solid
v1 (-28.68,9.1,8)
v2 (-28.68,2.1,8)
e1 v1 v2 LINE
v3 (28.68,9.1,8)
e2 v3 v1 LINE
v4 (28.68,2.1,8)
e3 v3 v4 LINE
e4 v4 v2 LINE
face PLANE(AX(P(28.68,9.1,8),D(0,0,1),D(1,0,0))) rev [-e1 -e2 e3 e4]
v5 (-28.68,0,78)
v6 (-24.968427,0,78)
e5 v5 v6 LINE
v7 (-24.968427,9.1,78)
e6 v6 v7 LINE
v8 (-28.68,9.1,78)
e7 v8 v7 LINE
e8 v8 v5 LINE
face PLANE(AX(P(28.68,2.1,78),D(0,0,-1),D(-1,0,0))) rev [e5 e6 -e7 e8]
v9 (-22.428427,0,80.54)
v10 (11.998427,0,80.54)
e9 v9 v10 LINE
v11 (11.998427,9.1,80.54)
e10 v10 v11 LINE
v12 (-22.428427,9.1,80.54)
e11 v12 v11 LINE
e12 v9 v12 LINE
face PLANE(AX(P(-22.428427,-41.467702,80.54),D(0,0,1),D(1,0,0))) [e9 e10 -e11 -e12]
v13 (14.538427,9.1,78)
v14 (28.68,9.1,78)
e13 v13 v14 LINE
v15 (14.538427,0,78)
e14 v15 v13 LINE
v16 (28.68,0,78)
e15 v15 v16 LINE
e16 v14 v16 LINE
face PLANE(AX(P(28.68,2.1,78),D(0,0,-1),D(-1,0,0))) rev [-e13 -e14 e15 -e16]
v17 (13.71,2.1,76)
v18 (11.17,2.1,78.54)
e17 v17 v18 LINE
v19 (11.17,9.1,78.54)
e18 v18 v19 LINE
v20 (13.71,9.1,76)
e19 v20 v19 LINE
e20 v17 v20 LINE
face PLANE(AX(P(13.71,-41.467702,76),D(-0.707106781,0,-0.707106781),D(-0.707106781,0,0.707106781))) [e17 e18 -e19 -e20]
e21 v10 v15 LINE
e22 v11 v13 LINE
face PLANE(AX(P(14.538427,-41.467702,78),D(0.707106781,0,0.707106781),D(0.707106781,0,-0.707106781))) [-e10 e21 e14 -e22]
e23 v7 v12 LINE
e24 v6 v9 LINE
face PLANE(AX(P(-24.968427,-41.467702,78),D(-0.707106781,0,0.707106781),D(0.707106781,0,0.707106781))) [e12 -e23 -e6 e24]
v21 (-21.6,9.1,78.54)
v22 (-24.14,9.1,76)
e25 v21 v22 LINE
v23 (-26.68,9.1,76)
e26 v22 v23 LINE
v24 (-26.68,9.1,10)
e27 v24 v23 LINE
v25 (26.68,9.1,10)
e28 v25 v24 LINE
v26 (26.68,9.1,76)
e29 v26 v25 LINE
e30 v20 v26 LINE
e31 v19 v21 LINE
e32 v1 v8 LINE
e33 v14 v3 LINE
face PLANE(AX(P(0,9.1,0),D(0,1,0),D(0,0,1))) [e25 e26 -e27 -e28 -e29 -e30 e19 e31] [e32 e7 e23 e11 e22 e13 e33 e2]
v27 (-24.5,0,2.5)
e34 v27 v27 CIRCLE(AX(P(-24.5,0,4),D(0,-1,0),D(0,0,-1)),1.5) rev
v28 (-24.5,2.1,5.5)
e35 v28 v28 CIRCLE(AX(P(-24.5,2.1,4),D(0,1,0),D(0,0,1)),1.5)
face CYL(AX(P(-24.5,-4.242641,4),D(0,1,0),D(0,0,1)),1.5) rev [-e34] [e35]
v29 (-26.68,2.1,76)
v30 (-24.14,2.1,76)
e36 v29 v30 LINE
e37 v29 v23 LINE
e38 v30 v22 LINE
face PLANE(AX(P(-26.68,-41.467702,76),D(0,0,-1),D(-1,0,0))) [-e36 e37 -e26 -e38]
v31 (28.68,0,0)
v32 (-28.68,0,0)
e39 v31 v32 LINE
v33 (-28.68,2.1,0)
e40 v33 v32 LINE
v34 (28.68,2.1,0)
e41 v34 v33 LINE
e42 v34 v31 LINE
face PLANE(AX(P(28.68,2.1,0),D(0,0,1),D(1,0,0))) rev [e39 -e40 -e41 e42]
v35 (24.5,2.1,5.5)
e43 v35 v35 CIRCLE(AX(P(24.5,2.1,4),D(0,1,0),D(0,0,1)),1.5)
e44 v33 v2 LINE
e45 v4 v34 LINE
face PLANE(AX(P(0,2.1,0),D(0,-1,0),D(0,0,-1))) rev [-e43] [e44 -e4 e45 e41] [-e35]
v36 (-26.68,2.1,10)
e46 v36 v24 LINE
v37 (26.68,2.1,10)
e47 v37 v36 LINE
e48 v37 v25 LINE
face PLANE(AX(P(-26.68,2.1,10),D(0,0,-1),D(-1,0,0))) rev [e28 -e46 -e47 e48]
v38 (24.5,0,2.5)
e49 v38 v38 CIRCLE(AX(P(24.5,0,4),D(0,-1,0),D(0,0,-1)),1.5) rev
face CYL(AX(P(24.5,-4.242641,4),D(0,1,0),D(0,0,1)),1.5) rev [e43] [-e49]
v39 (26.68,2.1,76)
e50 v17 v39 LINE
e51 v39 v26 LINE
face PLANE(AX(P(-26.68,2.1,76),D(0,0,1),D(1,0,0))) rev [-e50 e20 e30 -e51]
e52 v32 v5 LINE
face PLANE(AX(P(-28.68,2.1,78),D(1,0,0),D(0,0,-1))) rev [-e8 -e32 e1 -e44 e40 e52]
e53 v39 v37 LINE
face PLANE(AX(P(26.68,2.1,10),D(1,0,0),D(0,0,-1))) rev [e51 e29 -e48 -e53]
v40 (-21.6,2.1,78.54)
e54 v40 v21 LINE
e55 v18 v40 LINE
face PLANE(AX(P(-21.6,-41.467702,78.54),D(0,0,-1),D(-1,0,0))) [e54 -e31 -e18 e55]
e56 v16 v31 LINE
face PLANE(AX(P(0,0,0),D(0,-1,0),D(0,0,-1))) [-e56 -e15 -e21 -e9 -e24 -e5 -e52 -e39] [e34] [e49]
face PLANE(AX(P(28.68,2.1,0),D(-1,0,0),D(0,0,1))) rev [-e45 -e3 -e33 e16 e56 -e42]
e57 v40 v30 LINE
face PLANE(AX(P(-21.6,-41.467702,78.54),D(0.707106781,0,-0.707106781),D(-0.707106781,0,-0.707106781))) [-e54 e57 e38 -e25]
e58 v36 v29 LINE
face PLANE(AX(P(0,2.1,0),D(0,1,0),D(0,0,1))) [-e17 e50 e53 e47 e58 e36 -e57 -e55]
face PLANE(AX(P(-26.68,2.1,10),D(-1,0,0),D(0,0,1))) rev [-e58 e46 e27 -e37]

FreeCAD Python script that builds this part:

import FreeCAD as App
import Part
import Sketcher
Q = App.Units.Quantity

doc = App.newDocument("Part")
body = doc.addObject("PartDesign::Body", "Body")

# Sketch on XZ plane
sketch1 = body.newObject("Sketcher::SketchObject", "Sketch")
sketch1.AttachmentSupport = (doc.getObject("XZ_Plane"), [""])
sketch1.MapMode = "FlatFace"
sketch1.addGeometry([
    Part.LineSegment(App.Vector(28.68, 78, 0), App.Vector(28.68, 0, 0)),
    Part.LineSegment(App.Vector(28.68, 0, 0), App.Vector(-28.68, 0, 0)),
    Part.LineSegment(App.Vector(-28.68, 0, 0), App.Vector(-28.68, 78, 0)),
    Part.LineSegment(App.Vector(-28.68, 78, 0), App.Vector(28.68, 78, 0)),
], False)
sketch1.addConstraint([
    Sketcher.Constraint("Coincident", 0, 2, 1, 1),
    Sketcher.Constraint("Coincident", 1, 2, 2, 1),
    Sketcher.Constraint("Coincident", 2, 2, 3, 1),
    Sketcher.Constraint("Coincident", 3, 2, 0, 1),
    Sketcher.Constraint("Vertical", 0),
    Sketcher.Constraint("Horizontal", 1),
    Sketcher.Constraint("Vertical", 2),
    Sketcher.Constraint("Horizontal", 3),
    Sketcher.Constraint("Symmetric", 0, 2, 1, 2, -1, 1),
    Sketcher.Constraint("DistanceY", 0, 2, 0, 1, Q("78 mm")),
    Sketcher.Constraint("DistanceX", 1, 2, 1, 1, Q("57.36 mm")),
])
pad1 = body.newObject("PartDesign::Pad", "Pad")
pad1.Profile = sketch1
pad1.Length = 2.1
pad1.Reversed = True

# Sketch on XZ plane
sketch2 = body.newObject("Sketcher::SketchObject", "Sketch001")
sketch2.AttachmentSupport = (doc.getObject("XZ_Plane"), [""])
sketch2.MapMode = "FlatFace"
sketch2.AttachmentOffset = App.Placement(App.Vector(0, 0, -2.1), App.Rotation())
sketch2.addGeometry([
    Part.LineSegment(App.Vector(-28.68, 8, 0), App.Vector(-28.68, 78, 0)),
    Part.LineSegment(App.Vector(-28.68, 78, 0), App.Vector(28.68, 78, 0)),
    Part.LineSegment(App.Vector(28.68, 78, 0), App.Vector(28.68, 8, 0)),
    Part.LineSegment(App.Vector(28.68, 8, 0), App.Vector(-28.68, 8, 0)),
], False)
sketch2.addConstraint([
    Sketcher.Constraint("Coincident", 0, 2, 1, 1),
    Sketcher.Constraint("Coincident", 1, 2, 2, 1),
    Sketcher.Constraint("Coincident", 2, 2, 3, 1),
    Sketcher.Constraint("Coincident", 3, 2, 0, 1),
    Sketcher.Constraint("Vertical", 0),
    Sketcher.Constraint("Horizontal", 1),
    Sketcher.Constraint("Vertical", 2),
    Sketcher.Constraint("Horizontal", 3),
    Sketcher.Constraint("DistanceY", 0, 1, 0, 2, Q("70 mm")),
    Sketcher.Constraint("DistanceY", -1, 1, 0, 2, Q("78 mm")),
    Sketcher.Constraint("DistanceX", 1, 1, 1, 2, Q("57.36 mm")),
    Sketcher.Constraint("DistanceX", 0, 2, -1, 1, Q("28.68 mm")),
])
pad2 = body.newObject("PartDesign::Pad", "Pad001")
pad2.Profile = sketch2
pad2.Length = 7
pad2.Reversed = True

# Sketch on XZ plane
sketch3 = body.newObject("Sketcher::SketchObject", "Sketch002")
sketch3.AttachmentSupport = (doc.getObject("XZ_Plane"), [""])
sketch3.MapMode = "FlatFace"
sketch3.AttachmentOffset = App.Placement(App.Vector(0, 0, -9.1), App.Rotation())
sketch3.addGeometry([
    Part.LineSegment(App.Vector(-26.68, 10, 0), App.Vector(-26.68, 76, 0)),
    Part.LineSegment(App.Vector(-26.68, 76, 0), App.Vector(26.68, 76, 0)),
    Part.LineSegment(App.Vector(26.68, 76, 0), App.Vector(26.68, 10, 0)),
    Part.LineSegment(App.Vector(26.68, 10, 0), App.Vector(-26.68, 10, 0)),
], False)
sketch3.addConstraint([
    Sketcher.Constraint("Coincident", 0, 2, 1, 1),
    Sketcher.Constraint("Coincident", 1, 2, 2, 1),
    Sketcher.Constraint("Coincident", 2, 2, 3, 1),
    Sketcher.Constraint("Coincident", 3, 2, 0, 1),
    Sketcher.Constraint("Vertical", 0),
    Sketcher.Constraint("Horizontal", 1),
    Sketcher.Constraint("Vertical", 2),
    Sketcher.Constraint("Horizontal", 3),
    Sketcher.Constraint("DistanceY", 0, 1, 0, 2, Q("66 mm")),
    Sketcher.Constraint("DistanceY", -1, 1, 0, 2, Q("76 mm")),
    Sketcher.Constraint("DistanceX", 1, 1, 1, 2, Q("53.36 mm")),
    Sketcher.Constraint("DistanceX", 0, 2, -1, 1, Q("26.68 mm")),
])
pocket1 = body.newObject("PartDesign::Pocket", "Pocket")
pocket1.Profile = sketch3
pocket1.Length = 7
pocket1.Reversed = True

# Sketch on XZ plane
sketch4 = body.newObject("Sketcher::SketchObject", "Sketch003")
sketch4.AttachmentSupport = (doc.getObject("XZ_Plane"), [""])
sketch4.MapMode = "FlatFace"
sketch4.AttachmentOffset = App.Placement(App.Vector(0, 0, -2.1), App.Rotation())
sketch4.addGeometry([
    Part.Circle(App.Vector(24.5, 4, 0), App.Vector(0, 0, 1), 1.5),
    Part.Circle(App.Vector(-24.5, 4, 0), App.Vector(0, 0, 1), 1.5),
], False)
sketch4.addConstraint([
    Sketcher.Constraint("Equal", 0, 1),
    Sketcher.Constraint("Symmetric", 0, 3, 1, 3, -2),
    Sketcher.Constraint("Diameter", 0, Q("3 mm")),
    Sketcher.Constraint("DistanceY", -1, 1, 0, 3, Q("4 mm")),
    Sketcher.Constraint("DistanceX", 1, 3, 0, 3, Q("49 mm")),
])
pocket2 = body.newObject("PartDesign::Pocket", "Pocket001")
pocket2.Profile = sketch4
pocket2.Length = 2.1
pocket2.Reversed = True

# Sketch on XZ plane
sketch5 = body.newObject("Sketcher::SketchObject", "Sketch004")
sketch5.AttachmentSupport = (doc.getObject("XZ_Plane"), [""])
sketch5.MapMode = "FlatFace"
sketch5.AttachmentOffset = App.Placement(App.Vector(0, 0, -9.1), App.Rotation())
sketch5.addGeometry([
    Part.LineSegment(App.Vector(-26.68, 76, 0), App.Vector(-26.68, 78, 0)),
    Part.LineSegment(App.Vector(-26.68, 78, 0), App.Vector(13.71, 78, 0)),
    Part.LineSegment(App.Vector(13.71, 78, 0), App.Vector(13.71, 76, 0)),
    Part.LineSegment(App.Vector(13.71, 76, 0), App.Vector(-26.68, 76, 0)),
], False)
sketch5.addConstraint([
    Sketcher.Constraint("Coincident", 0, 2, 1, 1),
    Sketcher.Constraint("Coincident", 1, 2, 2, 1),
    Sketcher.Constraint("Coincident", 2, 2, 3, 1),
    Sketcher.Constraint("Coincident", 3, 2, 0, 1),
    Sketcher.Constraint("Vertical", 0),
    Sketcher.Constraint("Horizontal", 1),
    Sketcher.Constraint("Vertical", 2),
    Sketcher.Constraint("Horizontal", 3),
    Sketcher.Constraint("DistanceY", 0, 1, 0, 2, Q("2 mm")),
    Sketcher.Constraint("DistanceY", -1, 1, 0, 2, Q("78 mm")),
    Sketcher.Constraint("DistanceX", 1, 1, 1, 2, Q("40.39 mm")),
    Sketcher.Constraint("DistanceX", 0, 2, -1, 1, Q("26.68 mm")),
])
pocket3 = body.newObject("PartDesign::Pocket", "Pocket002")
pocket3.Profile = sketch5
pocket3.Length = 9.1
pocket3.Reversed = True

# Sketch on XZ plane
sketch6 = body.newObject("Sketcher::SketchObject", "Sketch005")
sketch6.AttachmentSupport = (doc.getObject("XZ_Plane"), [""])
sketch6.MapMode = "FlatFace"
sketch6.AttachmentOffset = App.Placement(App.Vector(0, 0, -9.1), App.Rotation())
sketch6.addGeometry([
    Part.LineSegment(App.Vector(-24.14, 76, 0), App.Vector(-26.68, 76, 0)),  # 0
    Part.LineSegment(App.Vector(-26.68, 76, 0), App.Vector(-26.68, 78, 0)),  # 1
    Part.LineSegment(App.Vector(-26.68, 78, 0), App.Vector(-24.968427, 78, 0)),  # 2
    Part.LineSegment(App.Vector(-24.968427, 78, 0), App.Vector(-22.428427, 80.54, 0)),  # 3
    Part.LineSegment(App.Vector(-22.428427, 80.54, 0), App.Vector(11.998427, 80.54, 0)),  # 4
    Part.LineSegment(App.Vector(11.998427, 80.54, 0), App.Vector(14.538427, 78, 0)),  # 5
    Part.LineSegment(App.Vector(14.538427, 78, 0), App.Vector(14.538427, 76, 0)),  # 6
    Part.LineSegment(App.Vector(14.538427, 76, 0), App.Vector(13.71, 76, 0)),  # 7
    Part.LineSegment(App.Vector(13.71, 76, 0), App.Vector(11.17, 78.54, 0)),  # 8
    Part.LineSegment(App.Vector(11.17, 78.54, 0), App.Vector(-21.6, 78.54, 0)),  # 9
    Part.LineSegment(App.Vector(-21.6, 78.54, 0), App.Vector(-24.14, 76, 0)),  # 10
], False)
sketch6.addConstraint([
    Sketcher.Constraint("Coincident", 0, 2, 1, 1),
    Sketcher.Constraint("Coincident", 1, 2, 2, 1),
    Sketcher.Constraint("Coincident", 2, 2, 3, 1),
    Sketcher.Constraint("Coincident", 3, 2, 4, 1),
    Sketcher.Constraint("Coincident", 4, 2, 5, 1),
    Sketcher.Constraint("Coincident", 5, 2, 6, 1),
    Sketcher.Constraint("Coincident", 6, 2, 7, 1),
    Sketcher.Constraint("Coincident", 7, 2, 8, 1),
    Sketcher.Constraint("Coincident", 8, 2, 9, 1),
    Sketcher.Constraint("Coincident", 9, 2, 10, 1),
    Sketcher.Constraint("Coincident", 10, 2, 0, 1),
    Sketcher.Constraint("Horizontal", 0),
    Sketcher.Constraint("Vertical", 1),
    Sketcher.Constraint("Horizontal", 2),
    Sketcher.Constraint("Horizontal", 4),
    Sketcher.Constraint("Vertical", 6),
    Sketcher.Constraint("Horizontal", 7),
    Sketcher.Constraint("Horizontal", 9),
    Sketcher.Constraint("Perpendicular", 3, 5),
    Sketcher.Constraint("Parallel", 5, 8),
    Sketcher.Constraint("Perpendicular", 8, 10),
    Sketcher.Constraint("Horizontal", 2, 2, 5, 2),
    Sketcher.Constraint("Horizontal", 0, 2, 6, 2),
    Sketcher.Constraint("Equal", 3, 5),
    Sketcher.Constraint("Equal", 5, 8),
    Sketcher.Constraint("DistanceY", 1, 1, 1, 2, Q("2 mm")),
    Sketcher.Constraint("DistanceY", -1, 1, 0, 2, Q("76 mm")),
    Sketcher.Constraint("DistanceX", 0, 2, 0, 1, Q("2.54 mm")),
    Sketcher.Constraint("DistanceX", 9, 2, 9, 1, Q("32.77 mm")),
    Sketcher.Constraint("DistanceX", 9, 2, -1, 1, Q("21.6 mm")),
    Sketcher.Constraint("DistanceX", 0, 2, -1, 1, Q("26.68 mm")),
    Sketcher.Constraint("DistanceX", 2, 1, 2, 2, Q("1.711573 mm")),
    Sketcher.Constraint("DistanceX", 4, 1, 4, 2, Q("34.426854 mm")),
])
pad3 = body.newObject("PartDesign::Pad", "Pad002")
pad3.Profile = sketch6
pad3.Length = 9.1

# Sketch on XZ plane
sketch7 = body.newObject("Sketcher::SketchObject", "Sketch006")
sketch7.AttachmentSupport = (doc.getObject("XZ_Plane"), [""])
sketch7.MapMode = "FlatFace"
sketch7.addGeometry([
    Part.LineSegment(App.Vector(-24.14, 76, 0), App.Vector(13.71, 76, 0)),
    Part.LineSegment(App.Vector(13.71, 76, 0), App.Vector(11.17, 78.54, 0)),
    Part.LineSegment(App.Vector(11.17, 78.54, 0), App.Vector(-21.6, 78.54, 0)),
    Part.LineSegment(App.Vector(-21.6, 78.54, 0), App.Vector(-24.14, 76, 0)),
], False)
sketch7.addConstraint([
    Sketcher.Constraint("Coincident", 0, 2, 1, 1),
    Sketcher.Constraint("Coincident", 1, 2, 2, 1),
    Sketcher.Constraint("Coincident", 2, 2, 3, 1),
    Sketcher.Constraint("Coincident", 3, 2, 0, 1),
    Sketcher.Constraint("Horizontal", 0),
    Sketcher.Constraint("Horizontal", 2),
    Sketcher.Constraint("Perpendicular", 1, 3),
    Sketcher.Constraint("Equal", 1, 3),
    Sketcher.Constraint("DistanceY", -1, 1, 0, 2, Q("76 mm")),
    Sketcher.Constraint("DistanceX", 0, 1, 0, 2, Q("37.85 mm")),
    Sketcher.Constraint("DistanceX", 2, 2, 2, 1, Q("32.77 mm")),
    Sketcher.Constraint("DistanceX", 2, 2, -1, 1, Q("21.6 mm")),
])
pad4 = body.newObject("PartDesign::Pad", "Pad003")
pad4.Profile = sketch7
pad4.Length = 2.1
pad4.Reversed = True

doc.recompute()
